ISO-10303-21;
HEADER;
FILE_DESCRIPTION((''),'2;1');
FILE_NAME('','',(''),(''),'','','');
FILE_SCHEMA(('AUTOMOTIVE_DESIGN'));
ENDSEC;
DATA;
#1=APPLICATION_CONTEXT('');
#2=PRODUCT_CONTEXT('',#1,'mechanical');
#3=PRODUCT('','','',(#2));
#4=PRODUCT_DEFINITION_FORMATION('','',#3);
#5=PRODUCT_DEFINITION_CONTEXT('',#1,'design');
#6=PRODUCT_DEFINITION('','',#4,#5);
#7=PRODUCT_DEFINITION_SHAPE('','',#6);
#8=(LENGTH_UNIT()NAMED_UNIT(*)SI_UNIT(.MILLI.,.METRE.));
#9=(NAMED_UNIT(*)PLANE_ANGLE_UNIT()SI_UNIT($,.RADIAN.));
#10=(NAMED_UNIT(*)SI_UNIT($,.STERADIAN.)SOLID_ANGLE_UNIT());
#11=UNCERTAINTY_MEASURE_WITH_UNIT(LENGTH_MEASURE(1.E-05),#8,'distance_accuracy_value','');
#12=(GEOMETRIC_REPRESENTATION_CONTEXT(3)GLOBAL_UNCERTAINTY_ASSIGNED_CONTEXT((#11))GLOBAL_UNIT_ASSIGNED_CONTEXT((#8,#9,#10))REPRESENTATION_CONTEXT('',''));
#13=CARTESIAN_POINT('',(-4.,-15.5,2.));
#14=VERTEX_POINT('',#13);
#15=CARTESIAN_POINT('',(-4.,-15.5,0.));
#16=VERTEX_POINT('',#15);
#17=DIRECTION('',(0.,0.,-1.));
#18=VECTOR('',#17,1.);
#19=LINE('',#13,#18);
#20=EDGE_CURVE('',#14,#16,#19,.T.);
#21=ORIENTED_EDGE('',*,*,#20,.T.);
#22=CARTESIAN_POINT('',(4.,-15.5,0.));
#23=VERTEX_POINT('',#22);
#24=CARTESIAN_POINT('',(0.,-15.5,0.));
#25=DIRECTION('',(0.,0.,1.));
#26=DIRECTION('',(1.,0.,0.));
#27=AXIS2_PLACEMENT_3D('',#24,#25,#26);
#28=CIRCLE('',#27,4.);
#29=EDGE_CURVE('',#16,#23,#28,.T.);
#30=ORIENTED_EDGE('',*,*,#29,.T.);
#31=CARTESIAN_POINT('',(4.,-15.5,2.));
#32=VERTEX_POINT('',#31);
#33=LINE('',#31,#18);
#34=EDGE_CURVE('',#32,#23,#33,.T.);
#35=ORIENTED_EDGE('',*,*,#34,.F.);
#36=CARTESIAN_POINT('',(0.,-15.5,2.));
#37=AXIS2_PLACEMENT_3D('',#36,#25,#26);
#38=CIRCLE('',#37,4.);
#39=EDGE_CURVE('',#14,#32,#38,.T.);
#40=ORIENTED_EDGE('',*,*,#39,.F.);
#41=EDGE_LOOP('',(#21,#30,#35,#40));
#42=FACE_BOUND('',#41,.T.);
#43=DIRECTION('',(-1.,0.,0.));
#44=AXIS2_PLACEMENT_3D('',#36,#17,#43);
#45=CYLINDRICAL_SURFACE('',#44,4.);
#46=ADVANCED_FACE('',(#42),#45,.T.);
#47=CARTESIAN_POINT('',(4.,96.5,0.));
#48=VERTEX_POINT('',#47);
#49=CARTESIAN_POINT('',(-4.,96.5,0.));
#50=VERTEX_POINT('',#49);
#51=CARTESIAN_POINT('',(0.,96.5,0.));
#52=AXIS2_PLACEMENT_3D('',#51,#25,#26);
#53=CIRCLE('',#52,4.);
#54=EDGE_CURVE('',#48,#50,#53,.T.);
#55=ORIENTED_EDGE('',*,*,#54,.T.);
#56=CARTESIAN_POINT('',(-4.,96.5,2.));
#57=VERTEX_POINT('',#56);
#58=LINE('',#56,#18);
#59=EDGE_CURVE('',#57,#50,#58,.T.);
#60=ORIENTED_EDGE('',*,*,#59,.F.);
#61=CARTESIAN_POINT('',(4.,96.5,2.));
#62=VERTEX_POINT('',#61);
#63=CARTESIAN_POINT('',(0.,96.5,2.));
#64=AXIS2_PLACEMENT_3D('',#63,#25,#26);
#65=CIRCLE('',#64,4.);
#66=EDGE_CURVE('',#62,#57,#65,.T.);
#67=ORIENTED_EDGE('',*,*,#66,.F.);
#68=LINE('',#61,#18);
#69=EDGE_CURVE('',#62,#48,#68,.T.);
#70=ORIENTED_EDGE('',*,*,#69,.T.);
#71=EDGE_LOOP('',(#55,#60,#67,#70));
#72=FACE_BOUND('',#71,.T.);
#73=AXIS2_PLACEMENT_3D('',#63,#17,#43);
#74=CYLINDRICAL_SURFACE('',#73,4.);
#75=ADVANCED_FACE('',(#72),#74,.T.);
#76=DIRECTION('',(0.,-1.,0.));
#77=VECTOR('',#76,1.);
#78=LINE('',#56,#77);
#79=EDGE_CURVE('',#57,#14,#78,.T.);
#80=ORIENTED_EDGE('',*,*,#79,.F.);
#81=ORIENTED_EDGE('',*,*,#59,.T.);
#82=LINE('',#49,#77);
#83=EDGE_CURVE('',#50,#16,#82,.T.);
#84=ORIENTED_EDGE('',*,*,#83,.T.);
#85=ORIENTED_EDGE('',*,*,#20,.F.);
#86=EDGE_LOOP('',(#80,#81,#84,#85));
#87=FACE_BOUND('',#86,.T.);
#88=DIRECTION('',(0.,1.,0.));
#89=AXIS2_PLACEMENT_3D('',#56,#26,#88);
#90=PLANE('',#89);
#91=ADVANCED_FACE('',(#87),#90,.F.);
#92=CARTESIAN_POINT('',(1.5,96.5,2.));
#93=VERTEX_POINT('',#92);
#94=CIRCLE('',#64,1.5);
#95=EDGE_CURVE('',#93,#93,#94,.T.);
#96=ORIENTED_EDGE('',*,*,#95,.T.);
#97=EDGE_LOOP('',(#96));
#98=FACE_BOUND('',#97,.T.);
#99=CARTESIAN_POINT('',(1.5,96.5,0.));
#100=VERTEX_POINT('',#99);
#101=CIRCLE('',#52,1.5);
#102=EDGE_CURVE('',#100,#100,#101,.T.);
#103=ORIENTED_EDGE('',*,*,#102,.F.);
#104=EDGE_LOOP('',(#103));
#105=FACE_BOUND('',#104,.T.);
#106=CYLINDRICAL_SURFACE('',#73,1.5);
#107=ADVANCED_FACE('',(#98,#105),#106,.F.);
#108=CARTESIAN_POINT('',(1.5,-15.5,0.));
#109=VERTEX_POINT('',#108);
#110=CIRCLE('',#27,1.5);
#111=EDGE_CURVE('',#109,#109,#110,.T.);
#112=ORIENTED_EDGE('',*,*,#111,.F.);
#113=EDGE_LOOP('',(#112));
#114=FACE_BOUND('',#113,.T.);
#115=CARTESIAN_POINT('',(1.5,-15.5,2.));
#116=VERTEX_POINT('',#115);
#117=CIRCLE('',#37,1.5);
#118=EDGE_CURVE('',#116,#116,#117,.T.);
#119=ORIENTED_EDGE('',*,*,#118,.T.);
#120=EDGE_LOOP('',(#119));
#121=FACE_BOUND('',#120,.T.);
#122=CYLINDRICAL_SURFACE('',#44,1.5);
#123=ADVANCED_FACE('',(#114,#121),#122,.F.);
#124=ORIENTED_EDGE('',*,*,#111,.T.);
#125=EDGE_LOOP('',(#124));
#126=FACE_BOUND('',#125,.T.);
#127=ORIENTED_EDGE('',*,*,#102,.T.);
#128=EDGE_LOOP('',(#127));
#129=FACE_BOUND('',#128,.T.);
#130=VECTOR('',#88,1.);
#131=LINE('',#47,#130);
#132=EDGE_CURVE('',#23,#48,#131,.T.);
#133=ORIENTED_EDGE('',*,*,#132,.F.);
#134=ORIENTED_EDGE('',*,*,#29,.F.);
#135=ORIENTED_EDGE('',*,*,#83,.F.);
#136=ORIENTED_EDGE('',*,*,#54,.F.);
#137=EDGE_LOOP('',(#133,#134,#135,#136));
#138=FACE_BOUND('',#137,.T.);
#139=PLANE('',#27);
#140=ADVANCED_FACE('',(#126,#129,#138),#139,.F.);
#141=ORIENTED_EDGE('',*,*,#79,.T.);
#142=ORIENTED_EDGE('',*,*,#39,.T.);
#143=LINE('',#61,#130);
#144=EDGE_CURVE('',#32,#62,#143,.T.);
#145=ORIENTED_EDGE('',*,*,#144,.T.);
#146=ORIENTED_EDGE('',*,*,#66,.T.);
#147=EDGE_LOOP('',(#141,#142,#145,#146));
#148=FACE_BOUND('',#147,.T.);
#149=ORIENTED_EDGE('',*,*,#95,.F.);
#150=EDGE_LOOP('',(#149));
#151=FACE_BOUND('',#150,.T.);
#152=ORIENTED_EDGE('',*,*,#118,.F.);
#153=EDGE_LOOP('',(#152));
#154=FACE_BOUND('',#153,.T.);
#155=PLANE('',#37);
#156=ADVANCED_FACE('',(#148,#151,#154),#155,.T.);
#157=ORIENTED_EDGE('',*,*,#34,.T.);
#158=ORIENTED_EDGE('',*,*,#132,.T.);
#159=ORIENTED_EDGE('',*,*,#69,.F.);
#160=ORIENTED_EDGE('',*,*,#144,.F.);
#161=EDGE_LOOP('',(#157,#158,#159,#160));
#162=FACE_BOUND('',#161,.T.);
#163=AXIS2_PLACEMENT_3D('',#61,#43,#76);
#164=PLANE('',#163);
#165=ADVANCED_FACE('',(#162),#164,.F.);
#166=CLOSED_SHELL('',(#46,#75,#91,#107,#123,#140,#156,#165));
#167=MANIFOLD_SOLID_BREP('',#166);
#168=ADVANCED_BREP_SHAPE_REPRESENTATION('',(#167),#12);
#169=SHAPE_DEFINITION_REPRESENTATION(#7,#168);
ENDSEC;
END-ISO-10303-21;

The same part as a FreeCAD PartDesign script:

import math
import FreeCAD as App
import Part
import Sketcher
Q = App.Units.Quantity

doc = App.newDocument("Part")
params = doc.addObject("Spreadsheet::Sheet", "Params")
for row, (alias, value) in enumerate([
    ("sketch1_diameter", "3 mm"),
    ("sketch1_radius", "4 mm"),
    ("sketch1_height", "112 mm"),
    ("pad1_length", "2 mm"),
], start=1):
    params.set(f"A{row}", alias)
    params.set(f"B{row}", "=" + value)
    params.setAlias(f"B{row}", alias)

body = doc.addObject("PartDesign::Body", "Body")

# Sketch on XY plane
sketch1 = doc.addObject("Sketcher::SketchObject", "Sketch")
body.addObject(sketch1)
sketch1.AttachmentSupport = (doc.XY_Plane, [""])
sketch1.MapMode = "FlatFace"
sketch1.addGeometry([
    Part.LineSegment(App.Vector(-4, 96.5, 0), App.Vector(-4, -15.5, 0)),  # 0
    Part.ArcOfCircle(Part.Circle(App.Vector(0, -15.5, 0), App.Vector(0, 0, 1), 4), math.radians(180), math.radians(360)),  # 1
    Part.LineSegment(App.Vector(4, -15.5, 0), App.Vector(4, 96.5, 0)),  # 2
    Part.ArcOfCircle(Part.Circle(App.Vector(0, 96.5, 0), App.Vector(0, 0, 1), 4), math.radians(0), math.radians(180)),  # 3
    Part.Circle(App.Vector(0, -15.5, 0), App.Vector(0, 0, 1), 1.5),  # 4
    Part.Circle(App.Vector(0, 96.5, 0), App.Vector(0, 0, 1), 1.5),  # 5
], False)
sketch1.addConstraint([
    Sketcher.Constraint("Tangent", 0, 2, 1, 1),
    Sketcher.Constraint("Tangent", 1, 2, 2, 1),
    Sketcher.Constraint("Tangent", 2, 2, 3, 1),
    Sketcher.Constraint("Tangent", 3, 2, 0, 1),
    Sketcher.Constraint("Vertical", 0),
    Sketcher.Constraint("Vertical", 2),
    Sketcher.Constraint("Coincident", 4, 3, 1, 3),
    Sketcher.Constraint("Coincident", 5, 3, 3, 3),
    Sketcher.Constraint("Equal", 4, 5),
    Sketcher.Constraint("PointOnObject", 1, 3, -2),
    Sketcher.Constraint("Diameter", 4, Q("3 mm")),
    Sketcher.Constraint("Radius", 1, Q("4 mm")),
    Sketcher.Constraint("DistanceY", 0, 2, 0, 1, Q("112 mm")),
    Sketcher.Constraint("DistanceY", 1, 3, -1, 1, Q("15.5 mm")),
])
sketch1.setExpression("Constraints[10]", "Params.sketch1_diameter")
sketch1.setExpression("Constraints[11]", "Params.sketch1_radius")
sketch1.setExpression("Constraints[12]", "Params.sketch1_height")
pad1 = doc.addObject("PartDesign::Pad", "Pad")
body.addObject(pad1)
pad1.Profile = sketch1
pad1.setExpression("Length", "Params.pad1_length")

doc.recompute()
